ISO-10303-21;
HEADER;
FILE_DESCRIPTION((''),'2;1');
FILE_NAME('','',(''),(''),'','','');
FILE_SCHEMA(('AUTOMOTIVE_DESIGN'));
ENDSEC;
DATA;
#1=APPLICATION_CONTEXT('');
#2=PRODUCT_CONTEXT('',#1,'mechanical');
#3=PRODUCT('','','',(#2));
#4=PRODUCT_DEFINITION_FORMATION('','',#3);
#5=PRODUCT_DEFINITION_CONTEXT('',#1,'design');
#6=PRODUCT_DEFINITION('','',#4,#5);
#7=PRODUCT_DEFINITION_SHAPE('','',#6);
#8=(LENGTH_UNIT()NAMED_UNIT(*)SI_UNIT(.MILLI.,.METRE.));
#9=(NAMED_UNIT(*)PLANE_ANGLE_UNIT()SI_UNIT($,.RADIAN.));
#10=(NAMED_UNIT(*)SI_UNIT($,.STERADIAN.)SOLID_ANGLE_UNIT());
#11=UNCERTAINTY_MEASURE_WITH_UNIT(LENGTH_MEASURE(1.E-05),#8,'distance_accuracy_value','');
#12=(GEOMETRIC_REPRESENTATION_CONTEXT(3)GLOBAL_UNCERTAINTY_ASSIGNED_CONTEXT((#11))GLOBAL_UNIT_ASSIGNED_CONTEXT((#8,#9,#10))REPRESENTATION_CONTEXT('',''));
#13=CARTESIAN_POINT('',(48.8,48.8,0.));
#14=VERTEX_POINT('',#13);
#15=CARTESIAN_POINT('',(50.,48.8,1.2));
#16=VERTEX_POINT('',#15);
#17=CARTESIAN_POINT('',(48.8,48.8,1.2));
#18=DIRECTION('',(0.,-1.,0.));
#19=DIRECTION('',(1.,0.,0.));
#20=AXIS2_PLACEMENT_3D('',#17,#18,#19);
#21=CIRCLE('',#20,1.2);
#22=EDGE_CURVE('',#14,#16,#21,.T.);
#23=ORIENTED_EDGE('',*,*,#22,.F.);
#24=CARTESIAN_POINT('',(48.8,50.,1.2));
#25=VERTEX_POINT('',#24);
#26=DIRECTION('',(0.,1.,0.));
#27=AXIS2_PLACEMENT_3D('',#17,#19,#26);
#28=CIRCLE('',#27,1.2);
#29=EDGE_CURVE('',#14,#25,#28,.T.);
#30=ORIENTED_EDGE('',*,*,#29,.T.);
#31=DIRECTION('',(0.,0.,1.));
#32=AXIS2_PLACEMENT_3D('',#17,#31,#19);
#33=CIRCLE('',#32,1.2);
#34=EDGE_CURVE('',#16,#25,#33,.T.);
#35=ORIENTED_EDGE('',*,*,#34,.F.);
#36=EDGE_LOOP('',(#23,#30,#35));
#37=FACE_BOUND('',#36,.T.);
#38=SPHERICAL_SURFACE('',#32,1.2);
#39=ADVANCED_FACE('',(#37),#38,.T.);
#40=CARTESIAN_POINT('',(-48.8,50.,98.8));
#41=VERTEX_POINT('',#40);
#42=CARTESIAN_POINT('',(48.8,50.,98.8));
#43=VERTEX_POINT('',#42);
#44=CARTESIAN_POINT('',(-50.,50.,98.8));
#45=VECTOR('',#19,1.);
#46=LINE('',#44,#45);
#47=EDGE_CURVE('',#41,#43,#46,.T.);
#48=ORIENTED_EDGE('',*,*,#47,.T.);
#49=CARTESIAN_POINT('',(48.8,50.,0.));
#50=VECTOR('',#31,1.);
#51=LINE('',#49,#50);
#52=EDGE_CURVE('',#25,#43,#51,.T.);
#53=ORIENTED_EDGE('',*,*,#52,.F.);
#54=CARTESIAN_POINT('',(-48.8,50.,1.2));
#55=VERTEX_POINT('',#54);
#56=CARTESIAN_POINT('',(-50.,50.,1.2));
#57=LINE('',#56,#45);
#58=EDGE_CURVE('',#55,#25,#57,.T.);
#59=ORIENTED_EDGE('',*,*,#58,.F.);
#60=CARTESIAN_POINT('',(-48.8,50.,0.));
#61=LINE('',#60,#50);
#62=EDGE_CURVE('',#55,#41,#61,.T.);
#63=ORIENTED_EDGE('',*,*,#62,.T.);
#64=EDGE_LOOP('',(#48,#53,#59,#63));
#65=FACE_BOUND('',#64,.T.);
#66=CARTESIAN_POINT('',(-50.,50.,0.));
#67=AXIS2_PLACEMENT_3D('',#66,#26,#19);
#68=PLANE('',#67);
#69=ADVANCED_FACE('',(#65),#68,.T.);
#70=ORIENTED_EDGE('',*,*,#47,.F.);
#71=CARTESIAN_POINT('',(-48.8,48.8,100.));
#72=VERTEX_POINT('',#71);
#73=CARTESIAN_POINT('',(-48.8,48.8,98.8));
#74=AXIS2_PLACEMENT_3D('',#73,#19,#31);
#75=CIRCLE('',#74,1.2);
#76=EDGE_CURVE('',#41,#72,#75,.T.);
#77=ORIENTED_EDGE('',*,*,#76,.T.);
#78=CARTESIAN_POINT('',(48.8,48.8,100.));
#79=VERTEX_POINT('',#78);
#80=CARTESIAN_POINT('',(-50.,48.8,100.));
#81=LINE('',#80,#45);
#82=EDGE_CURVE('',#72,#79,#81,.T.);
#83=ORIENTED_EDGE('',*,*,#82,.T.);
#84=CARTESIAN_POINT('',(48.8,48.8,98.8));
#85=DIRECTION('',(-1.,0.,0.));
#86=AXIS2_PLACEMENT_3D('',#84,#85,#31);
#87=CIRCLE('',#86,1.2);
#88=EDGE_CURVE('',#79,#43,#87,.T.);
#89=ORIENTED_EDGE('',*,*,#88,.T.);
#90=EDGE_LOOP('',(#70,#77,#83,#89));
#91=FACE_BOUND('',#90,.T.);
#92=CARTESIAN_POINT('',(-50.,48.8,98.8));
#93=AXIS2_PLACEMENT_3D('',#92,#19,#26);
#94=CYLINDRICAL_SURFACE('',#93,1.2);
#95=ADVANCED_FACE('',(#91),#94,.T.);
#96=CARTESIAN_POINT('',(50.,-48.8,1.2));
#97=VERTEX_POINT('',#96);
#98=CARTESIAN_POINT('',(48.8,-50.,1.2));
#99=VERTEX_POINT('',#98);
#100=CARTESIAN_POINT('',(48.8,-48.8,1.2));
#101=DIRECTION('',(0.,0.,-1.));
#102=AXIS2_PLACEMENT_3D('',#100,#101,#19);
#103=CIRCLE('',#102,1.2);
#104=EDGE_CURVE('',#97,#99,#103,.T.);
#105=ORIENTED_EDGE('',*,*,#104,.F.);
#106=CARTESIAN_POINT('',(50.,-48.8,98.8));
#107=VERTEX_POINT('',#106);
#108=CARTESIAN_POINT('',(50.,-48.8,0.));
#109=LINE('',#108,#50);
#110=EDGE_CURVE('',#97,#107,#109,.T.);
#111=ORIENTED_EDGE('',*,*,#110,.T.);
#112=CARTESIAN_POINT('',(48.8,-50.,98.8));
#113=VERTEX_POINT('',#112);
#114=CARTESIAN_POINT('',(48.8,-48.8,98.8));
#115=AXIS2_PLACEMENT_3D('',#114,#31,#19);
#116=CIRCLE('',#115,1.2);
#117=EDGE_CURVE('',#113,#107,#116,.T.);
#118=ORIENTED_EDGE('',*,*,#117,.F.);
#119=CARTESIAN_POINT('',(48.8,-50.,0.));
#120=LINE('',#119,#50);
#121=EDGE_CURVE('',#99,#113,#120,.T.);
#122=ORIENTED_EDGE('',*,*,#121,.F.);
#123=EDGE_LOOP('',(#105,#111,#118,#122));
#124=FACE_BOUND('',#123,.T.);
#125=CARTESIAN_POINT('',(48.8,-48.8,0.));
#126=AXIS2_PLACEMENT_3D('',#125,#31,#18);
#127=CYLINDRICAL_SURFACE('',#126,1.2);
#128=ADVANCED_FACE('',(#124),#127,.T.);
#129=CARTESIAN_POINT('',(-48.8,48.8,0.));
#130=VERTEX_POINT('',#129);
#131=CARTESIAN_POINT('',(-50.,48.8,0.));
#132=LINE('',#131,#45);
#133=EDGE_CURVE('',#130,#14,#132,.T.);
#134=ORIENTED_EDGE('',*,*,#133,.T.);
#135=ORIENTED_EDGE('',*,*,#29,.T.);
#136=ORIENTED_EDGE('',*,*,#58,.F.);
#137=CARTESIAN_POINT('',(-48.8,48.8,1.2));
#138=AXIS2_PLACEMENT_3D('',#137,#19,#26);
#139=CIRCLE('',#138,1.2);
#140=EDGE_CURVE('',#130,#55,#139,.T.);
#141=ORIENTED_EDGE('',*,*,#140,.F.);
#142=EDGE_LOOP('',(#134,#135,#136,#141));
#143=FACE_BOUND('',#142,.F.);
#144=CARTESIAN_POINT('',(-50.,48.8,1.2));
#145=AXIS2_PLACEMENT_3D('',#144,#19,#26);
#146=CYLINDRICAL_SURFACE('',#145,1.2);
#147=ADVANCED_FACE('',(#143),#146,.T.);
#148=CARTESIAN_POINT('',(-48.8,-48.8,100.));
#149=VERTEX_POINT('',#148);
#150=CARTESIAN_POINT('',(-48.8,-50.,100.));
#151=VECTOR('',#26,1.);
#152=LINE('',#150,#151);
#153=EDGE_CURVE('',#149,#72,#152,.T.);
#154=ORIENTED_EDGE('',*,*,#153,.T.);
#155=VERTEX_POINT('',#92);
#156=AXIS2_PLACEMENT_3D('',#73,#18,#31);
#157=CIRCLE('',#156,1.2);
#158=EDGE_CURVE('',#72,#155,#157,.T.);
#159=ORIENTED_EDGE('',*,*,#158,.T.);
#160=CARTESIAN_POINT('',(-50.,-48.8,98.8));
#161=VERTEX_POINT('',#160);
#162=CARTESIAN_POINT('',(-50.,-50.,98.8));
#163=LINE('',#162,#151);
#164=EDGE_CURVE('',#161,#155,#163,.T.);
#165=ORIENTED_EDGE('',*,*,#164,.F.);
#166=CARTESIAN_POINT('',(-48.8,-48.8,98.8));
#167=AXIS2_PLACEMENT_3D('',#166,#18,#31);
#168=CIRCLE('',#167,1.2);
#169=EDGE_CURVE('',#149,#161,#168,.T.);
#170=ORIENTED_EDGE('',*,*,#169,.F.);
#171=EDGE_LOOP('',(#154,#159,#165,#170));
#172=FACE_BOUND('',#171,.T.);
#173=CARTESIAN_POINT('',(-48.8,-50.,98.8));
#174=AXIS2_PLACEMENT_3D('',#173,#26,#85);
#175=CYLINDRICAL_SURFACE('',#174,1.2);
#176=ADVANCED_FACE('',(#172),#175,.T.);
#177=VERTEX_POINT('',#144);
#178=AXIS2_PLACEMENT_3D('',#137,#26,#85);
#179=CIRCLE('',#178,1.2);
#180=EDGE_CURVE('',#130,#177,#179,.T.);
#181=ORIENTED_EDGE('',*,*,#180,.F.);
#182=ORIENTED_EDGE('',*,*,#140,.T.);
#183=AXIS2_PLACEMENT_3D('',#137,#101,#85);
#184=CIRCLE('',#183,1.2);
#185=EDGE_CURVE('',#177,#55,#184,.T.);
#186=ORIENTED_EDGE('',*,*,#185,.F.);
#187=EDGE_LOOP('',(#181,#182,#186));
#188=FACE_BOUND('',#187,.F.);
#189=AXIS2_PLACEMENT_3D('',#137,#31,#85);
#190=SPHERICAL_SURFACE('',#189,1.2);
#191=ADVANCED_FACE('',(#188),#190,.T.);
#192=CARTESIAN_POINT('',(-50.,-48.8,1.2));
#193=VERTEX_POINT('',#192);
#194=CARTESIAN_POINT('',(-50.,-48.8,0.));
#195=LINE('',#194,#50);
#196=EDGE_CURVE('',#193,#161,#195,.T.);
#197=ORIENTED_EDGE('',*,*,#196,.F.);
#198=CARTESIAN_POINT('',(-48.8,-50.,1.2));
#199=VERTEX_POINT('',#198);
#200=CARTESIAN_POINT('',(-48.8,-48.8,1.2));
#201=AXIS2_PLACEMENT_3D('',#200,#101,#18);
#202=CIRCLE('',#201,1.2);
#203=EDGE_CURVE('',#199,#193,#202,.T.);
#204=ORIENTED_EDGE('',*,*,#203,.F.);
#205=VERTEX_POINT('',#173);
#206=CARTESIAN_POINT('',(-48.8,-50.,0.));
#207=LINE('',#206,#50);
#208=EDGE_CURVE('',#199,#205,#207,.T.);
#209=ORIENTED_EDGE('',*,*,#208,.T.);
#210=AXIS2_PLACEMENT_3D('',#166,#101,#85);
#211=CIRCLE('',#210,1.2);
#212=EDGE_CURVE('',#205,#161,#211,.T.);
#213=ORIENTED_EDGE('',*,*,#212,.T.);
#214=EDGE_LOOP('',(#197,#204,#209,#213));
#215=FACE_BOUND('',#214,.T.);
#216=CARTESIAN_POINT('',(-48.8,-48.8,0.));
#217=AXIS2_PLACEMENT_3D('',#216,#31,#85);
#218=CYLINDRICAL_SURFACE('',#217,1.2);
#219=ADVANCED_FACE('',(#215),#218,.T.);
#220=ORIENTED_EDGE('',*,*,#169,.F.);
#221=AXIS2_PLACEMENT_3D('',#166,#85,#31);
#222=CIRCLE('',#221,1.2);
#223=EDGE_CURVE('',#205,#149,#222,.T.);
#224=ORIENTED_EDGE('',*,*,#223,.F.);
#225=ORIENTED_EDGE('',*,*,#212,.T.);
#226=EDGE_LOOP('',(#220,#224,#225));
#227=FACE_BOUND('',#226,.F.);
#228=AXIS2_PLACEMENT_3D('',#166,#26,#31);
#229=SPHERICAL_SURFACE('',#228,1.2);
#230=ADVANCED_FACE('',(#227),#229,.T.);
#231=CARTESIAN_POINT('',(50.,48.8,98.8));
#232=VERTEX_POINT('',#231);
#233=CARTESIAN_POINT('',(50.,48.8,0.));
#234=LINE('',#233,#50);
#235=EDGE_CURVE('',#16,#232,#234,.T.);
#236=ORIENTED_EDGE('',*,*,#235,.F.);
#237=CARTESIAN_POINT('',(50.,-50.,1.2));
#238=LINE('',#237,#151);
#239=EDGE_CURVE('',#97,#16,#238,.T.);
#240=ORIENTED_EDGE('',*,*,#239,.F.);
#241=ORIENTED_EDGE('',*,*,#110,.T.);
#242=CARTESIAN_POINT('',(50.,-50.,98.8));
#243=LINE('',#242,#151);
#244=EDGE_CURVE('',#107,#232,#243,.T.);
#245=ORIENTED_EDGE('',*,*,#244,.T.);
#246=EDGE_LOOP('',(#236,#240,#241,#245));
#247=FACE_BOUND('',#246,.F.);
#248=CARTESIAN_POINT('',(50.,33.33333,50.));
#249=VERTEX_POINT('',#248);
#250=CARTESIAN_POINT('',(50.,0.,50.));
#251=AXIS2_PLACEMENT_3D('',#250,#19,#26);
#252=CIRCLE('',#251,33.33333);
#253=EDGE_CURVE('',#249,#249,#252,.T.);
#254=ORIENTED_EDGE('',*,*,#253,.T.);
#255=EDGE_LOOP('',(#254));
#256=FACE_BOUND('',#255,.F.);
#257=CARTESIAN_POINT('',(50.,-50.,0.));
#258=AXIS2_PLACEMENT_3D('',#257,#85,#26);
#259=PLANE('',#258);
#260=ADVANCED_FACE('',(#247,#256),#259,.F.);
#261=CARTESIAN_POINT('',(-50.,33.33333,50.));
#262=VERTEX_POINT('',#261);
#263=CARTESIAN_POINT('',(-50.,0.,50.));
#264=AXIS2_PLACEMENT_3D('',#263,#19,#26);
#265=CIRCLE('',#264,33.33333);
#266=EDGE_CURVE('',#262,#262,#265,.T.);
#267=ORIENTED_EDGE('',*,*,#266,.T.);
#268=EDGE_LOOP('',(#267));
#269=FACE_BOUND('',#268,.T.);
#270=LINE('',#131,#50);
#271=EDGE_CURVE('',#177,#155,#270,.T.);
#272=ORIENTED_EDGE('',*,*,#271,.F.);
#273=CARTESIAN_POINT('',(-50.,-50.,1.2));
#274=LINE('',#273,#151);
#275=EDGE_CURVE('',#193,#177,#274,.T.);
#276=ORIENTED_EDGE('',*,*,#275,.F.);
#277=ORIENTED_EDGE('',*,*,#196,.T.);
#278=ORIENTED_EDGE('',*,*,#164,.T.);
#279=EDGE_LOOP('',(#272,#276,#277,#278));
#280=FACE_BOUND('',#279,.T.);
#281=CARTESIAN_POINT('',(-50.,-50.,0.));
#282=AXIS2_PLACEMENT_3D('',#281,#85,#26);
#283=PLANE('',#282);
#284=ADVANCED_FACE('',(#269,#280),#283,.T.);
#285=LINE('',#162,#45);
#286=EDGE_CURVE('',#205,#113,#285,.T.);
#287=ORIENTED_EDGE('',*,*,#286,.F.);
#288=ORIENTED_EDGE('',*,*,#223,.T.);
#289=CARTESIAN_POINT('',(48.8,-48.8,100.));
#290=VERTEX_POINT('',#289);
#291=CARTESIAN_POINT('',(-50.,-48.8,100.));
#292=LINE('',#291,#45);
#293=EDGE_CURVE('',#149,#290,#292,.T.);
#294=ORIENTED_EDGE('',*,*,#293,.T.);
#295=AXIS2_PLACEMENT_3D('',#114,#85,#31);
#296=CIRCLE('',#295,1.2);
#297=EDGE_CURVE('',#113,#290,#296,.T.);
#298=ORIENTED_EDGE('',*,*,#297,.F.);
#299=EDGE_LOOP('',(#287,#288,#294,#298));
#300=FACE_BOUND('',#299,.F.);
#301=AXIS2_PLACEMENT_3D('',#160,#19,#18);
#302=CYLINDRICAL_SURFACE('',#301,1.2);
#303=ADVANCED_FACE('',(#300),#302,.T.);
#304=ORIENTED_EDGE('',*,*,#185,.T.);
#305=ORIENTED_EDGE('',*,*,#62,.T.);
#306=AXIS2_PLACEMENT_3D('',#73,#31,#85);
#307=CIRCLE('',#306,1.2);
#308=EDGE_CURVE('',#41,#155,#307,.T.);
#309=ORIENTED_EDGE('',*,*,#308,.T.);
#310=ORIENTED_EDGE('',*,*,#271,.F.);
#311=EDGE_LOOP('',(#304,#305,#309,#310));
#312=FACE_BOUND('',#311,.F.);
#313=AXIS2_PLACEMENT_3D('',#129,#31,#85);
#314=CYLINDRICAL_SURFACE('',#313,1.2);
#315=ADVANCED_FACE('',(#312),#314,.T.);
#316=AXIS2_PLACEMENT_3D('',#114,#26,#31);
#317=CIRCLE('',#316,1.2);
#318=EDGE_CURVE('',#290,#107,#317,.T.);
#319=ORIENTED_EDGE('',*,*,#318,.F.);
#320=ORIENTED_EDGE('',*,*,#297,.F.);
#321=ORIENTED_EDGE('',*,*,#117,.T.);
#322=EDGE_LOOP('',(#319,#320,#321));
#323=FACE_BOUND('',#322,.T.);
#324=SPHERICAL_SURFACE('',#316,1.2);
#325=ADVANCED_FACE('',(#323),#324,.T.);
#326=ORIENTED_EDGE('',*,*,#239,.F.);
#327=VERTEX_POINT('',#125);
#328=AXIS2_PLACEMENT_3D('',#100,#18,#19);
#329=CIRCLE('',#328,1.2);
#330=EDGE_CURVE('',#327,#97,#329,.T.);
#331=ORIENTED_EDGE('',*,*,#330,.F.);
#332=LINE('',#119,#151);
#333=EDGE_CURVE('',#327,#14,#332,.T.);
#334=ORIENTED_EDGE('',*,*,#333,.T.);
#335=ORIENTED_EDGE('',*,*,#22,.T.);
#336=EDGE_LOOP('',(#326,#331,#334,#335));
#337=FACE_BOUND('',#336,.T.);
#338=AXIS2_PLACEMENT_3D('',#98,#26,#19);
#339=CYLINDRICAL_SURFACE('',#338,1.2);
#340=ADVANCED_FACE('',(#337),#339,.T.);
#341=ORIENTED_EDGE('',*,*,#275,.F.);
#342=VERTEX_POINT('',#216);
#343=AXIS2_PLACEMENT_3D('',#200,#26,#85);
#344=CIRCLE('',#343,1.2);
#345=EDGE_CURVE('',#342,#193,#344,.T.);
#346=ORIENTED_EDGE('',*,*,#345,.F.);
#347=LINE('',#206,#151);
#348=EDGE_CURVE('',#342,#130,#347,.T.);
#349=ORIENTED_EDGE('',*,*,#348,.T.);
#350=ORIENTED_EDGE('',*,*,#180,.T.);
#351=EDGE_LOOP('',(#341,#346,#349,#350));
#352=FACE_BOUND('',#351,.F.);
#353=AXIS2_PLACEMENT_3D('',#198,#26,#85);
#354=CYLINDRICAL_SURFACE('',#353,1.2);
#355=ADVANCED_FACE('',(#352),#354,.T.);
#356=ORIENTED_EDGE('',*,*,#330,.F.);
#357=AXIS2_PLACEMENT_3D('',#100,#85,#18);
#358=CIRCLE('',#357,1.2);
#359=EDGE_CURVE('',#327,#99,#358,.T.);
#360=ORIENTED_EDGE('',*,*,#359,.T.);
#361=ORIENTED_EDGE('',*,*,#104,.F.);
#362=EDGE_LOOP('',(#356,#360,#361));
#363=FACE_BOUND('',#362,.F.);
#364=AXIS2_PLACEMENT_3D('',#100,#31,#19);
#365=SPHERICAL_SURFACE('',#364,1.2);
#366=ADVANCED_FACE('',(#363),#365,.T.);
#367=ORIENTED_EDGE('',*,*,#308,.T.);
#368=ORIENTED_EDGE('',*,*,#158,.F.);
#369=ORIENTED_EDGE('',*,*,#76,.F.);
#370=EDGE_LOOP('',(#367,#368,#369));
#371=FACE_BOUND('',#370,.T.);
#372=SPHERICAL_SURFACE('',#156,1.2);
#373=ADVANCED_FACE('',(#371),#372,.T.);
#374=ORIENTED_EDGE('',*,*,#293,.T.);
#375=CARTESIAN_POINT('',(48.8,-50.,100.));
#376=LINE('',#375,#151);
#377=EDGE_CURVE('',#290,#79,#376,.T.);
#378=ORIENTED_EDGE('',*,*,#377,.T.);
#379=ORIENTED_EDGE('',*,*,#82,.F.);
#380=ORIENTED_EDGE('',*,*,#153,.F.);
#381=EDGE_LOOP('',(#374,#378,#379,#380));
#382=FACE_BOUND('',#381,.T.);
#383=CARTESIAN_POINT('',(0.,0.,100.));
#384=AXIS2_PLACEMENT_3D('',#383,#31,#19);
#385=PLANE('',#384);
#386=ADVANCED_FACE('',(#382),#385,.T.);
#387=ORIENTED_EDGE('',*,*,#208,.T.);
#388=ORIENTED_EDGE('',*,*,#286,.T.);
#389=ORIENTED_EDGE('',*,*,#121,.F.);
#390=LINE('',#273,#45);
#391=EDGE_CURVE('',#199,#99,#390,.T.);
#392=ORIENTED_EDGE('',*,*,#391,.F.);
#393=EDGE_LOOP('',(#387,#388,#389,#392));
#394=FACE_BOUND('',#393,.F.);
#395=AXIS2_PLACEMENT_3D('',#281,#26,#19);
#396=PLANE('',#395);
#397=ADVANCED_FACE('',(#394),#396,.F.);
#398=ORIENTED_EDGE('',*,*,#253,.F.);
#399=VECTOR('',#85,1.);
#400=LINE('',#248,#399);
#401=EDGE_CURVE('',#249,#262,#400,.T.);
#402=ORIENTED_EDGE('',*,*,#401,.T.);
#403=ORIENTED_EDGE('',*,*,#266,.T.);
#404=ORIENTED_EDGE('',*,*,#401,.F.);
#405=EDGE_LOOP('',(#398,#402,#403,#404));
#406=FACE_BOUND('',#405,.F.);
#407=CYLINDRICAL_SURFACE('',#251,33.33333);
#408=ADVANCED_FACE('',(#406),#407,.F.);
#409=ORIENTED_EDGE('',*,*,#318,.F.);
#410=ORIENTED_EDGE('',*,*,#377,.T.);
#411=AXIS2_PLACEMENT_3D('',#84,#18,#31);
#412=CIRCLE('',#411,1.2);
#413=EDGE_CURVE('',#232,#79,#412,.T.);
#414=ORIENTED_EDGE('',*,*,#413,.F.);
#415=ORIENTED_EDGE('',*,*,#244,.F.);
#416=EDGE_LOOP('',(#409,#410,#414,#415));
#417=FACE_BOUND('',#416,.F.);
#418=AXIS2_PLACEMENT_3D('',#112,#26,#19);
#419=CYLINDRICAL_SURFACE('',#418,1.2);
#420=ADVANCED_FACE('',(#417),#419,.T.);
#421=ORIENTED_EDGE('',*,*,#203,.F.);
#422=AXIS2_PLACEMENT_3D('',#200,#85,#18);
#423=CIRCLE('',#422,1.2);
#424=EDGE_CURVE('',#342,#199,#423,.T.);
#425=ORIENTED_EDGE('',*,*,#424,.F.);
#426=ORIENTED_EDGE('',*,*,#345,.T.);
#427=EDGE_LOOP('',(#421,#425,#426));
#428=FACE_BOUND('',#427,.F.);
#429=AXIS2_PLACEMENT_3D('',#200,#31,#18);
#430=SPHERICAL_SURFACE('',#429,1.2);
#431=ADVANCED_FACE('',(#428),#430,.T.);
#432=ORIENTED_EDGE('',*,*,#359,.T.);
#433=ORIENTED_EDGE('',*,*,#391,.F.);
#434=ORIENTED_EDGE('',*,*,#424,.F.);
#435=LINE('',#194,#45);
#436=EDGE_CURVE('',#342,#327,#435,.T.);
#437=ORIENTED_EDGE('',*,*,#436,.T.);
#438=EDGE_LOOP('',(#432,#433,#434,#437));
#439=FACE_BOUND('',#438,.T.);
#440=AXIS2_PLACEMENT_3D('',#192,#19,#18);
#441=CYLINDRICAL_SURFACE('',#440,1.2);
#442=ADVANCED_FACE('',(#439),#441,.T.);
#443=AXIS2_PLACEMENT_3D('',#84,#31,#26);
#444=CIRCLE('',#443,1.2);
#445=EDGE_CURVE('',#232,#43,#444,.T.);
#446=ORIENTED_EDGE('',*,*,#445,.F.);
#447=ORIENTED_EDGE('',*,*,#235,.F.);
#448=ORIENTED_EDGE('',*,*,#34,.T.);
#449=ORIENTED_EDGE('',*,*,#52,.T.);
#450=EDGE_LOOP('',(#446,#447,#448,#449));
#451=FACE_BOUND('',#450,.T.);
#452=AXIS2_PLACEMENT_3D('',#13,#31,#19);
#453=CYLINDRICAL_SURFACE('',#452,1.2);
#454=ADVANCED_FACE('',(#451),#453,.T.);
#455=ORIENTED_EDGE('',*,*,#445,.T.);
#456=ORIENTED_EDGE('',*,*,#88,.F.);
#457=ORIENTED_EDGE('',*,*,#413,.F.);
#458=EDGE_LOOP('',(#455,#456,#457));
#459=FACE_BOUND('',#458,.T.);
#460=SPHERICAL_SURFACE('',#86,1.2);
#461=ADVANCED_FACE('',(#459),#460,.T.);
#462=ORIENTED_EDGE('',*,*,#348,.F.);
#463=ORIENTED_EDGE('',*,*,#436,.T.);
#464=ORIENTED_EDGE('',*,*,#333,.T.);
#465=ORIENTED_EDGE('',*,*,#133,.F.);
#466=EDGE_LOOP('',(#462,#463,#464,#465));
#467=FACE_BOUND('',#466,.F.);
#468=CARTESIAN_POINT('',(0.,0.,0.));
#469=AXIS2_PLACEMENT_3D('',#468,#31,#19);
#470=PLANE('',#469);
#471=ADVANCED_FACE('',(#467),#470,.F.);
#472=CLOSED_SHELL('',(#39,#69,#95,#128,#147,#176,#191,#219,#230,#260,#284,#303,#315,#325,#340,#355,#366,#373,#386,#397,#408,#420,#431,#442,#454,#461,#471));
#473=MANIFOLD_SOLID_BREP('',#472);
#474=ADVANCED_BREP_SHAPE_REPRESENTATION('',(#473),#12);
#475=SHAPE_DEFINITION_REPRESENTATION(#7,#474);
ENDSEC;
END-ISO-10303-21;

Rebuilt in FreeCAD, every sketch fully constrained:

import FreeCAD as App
import Part
import Sketcher
Q = App.Units.Quantity


def add_polygon(sketch, points):
    """Adds a closed chain of lines whose ends are joined by coincident constraints."""
    first, n = sketch.GeometryCount, len(points)
    for a, b in zip(points, points[1:] + points[:1]):
        sketch.addGeometry(Part.LineSegment(App.Vector(*a, 0), App.Vector(*b, 0)), False)
    for i in range(n):
        sketch.addConstraint(Sketcher.Constraint("Coincident", first + i, 2, first + (i + 1) % n, 1))

doc = App.newDocument("Part")
body = doc.addObject("PartDesign::Body", "Body")

sketch1 = body.newObject("Sketcher::SketchObject", "Sketch")
sketch1.AttachmentSupport = (doc.getObject("XY_Plane"), [""])
sketch1.MapMode = "FlatFace"
add_polygon(sketch1, [(-50, 50), (-50, -50), (50, -50), (50, 50)])
sketch1.addConstraint([
    Sketcher.Constraint("Vertical", 0),
    Sketcher.Constraint("Horizontal", 1),
    Sketcher.Constraint("Vertical", 2),
    Sketcher.Constraint("Horizontal", 3),
    Sketcher.Constraint("Symmetric", 0, 2, 2, 2, -1, 1),
    Sketcher.Constraint("Equal", 3, 0),
    Sketcher.Constraint("DistanceX", 1, 1, 1, 2, Q("100 mm")),
])
pad1 = body.newObject("PartDesign::Pad", "Pad")
pad1.Profile = sketch1
pad1.Length = 100
doc.recompute()

fillet = body.newObject("PartDesign::Fillet", "Fillet")
fillet.Base = (pad1, ["Edge1"])
fillet.UseAllEdges = True
fillet.Radius = 1.2

sketch2 = body.newObject("Sketcher::SketchObject", "Sketch001")
sketch2.AttachmentSupport = (doc.getObject("YZ_Plane"), [""])
sketch2.MapMode = "FlatFace"
sketch2.AttachmentOffset = App.Placement(App.Vector(0, 0, 50), App.Rotation())
sketch2.addGeometry(Part.Circle(App.Vector(0, 50, 0), App.Vector(0, 0, 1), 33), False)
sketch2.addConstraint([
    Sketcher.Constraint("PointOnObject", 0, 3, -2),
    Sketcher.Constraint("DistanceY", -1, 1, 0, 3, Q("50 mm")),
    Sketcher.Constraint("Diameter", 0, Q("66.66666 mm")),
])
pocket1 = body.newObject("PartDesign::Pocket", "Pocket")
pocket1.Profile = sketch2
pocket1.Type = "ThroughAll"

doc.recompute()
